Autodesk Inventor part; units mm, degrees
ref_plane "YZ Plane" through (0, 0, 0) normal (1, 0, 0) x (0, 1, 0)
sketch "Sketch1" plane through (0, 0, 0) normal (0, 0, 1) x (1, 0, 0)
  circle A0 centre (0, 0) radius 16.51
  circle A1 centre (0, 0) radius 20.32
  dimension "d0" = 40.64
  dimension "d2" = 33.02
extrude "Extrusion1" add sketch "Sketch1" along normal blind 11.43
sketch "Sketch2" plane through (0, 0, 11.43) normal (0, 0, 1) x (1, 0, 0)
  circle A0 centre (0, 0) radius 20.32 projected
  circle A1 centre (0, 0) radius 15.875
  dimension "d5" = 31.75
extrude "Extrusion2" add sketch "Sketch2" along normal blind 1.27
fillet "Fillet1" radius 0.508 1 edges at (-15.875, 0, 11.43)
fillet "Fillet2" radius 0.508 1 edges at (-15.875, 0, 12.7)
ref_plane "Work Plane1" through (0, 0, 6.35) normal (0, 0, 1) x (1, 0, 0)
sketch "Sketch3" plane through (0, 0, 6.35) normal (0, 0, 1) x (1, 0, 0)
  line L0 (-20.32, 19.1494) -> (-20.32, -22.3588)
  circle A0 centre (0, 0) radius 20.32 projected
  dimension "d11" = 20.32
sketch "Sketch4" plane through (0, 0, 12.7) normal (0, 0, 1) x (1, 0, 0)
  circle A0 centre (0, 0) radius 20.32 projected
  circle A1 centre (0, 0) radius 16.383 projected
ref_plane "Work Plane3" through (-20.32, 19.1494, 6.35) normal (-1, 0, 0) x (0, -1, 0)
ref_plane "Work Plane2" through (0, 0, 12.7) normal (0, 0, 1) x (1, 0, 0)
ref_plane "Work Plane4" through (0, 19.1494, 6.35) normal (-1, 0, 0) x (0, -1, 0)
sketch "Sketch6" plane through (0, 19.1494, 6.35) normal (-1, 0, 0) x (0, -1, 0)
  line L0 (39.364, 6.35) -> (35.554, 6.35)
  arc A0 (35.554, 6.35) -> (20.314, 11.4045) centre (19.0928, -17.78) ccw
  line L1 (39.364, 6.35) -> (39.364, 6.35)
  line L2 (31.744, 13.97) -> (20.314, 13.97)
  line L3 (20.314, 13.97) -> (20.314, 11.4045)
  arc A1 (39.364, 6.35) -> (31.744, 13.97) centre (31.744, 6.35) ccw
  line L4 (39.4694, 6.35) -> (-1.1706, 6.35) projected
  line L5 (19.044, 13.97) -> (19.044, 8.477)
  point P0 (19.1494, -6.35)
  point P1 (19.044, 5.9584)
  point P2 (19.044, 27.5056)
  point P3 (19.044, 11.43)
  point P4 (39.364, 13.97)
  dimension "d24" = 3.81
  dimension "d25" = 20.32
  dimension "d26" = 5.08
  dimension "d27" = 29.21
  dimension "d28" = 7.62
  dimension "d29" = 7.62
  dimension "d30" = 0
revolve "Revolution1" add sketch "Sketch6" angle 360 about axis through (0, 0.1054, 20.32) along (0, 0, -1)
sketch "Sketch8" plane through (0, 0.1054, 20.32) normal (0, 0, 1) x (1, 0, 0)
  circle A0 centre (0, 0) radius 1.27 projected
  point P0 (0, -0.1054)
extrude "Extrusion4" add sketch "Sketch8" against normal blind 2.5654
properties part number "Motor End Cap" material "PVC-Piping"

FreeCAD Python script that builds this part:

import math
import FreeCAD as App
import Part
import Sketcher

V = App.Vector
Q = App.Units.Quantity


def edges_at(feature, points):
    """Names of the edges that pass closest to the given points."""
    edges = feature.Shape.Edges
    near = lambda p: min(range(len(edges)), key=lambda i: edges[i].distToShape(Part.Vertex(*p))[0])
    return sorted({f"Edge{near(p) + 1}" for p in points})

doc = App.newDocument("Part")
body = doc.addObject("PartDesign::Body", "Body")

# Sketch on XY plane
sketch1 = body.newObject("Sketcher::SketchObject", "Sketch")
sketch1.AttachmentSupport = (doc.getObject("XY_Plane"), [""])
sketch1.MapMode = "FlatFace"
sketch1.addGeometry([
    Part.Circle(V(0, 0, 0), V(0, 0, 1), 20),
    Part.Circle(V(0, 0, 0), V(0, 0, 1), 17),
], False)
sketch1.addConstraint([
    Sketcher.Constraint("Coincident", 0, 3, -1, 1),
    Sketcher.Constraint("Coincident", 1, 3, -1, 1),
    Sketcher.Constraint("Diameter", 0, Q("1.6 in")),
    Sketcher.Constraint("Diameter", 1, Q("1.3 in")),
])
pad1 = body.newObject("PartDesign::Pad", "Pad")
pad1.Profile = sketch1
pad1.Length = Q("0.45 in")

# Sketch on XY plane
sketch2 = body.newObject("Sketcher::SketchObject", "Sketch001")
sketch2.AttachmentSupport = (doc.getObject("XY_Plane"), [""])
sketch2.MapMode = "FlatFace"
sketch2.AttachmentOffset = App.Placement(V(0, 0, 0.45 * 25.4), App.Rotation())
sketch2.addGeometry([
    Part.Circle(V(0, 0, 0), V(0, 0, 1), 20),
    Part.Circle(V(0, 0, 0), V(0, 0, 1), 16),
], False)
sketch2.addConstraint([
    Sketcher.Constraint("Coincident", 0, 3, -1, 1),
    Sketcher.Constraint("Coincident", 1, 3, -1, 1),
    Sketcher.Constraint("Diameter", 1, Q("1.25 in")),
    Sketcher.Constraint("Diameter", 0, Q("1.6 in")),
])
pad2 = body.newObject("PartDesign::Pad", "Pad001")
pad2.Profile = sketch2
pad2.Length = Q("0.05 in")
doc.recompute()

fillet = body.newObject("PartDesign::Fillet", "Fillet")
fillet.Base = (pad2, edges_at(pad2, [(-15.875, 0, 11.43)]))
fillet.Radius = Q("0.02 in")
doc.recompute()

fillet2 = body.newObject("PartDesign::Fillet", "Fillet001")
fillet2.Base = (fillet, edges_at(fillet, [(-15.875, 0, 12.7)]))
fillet2.Radius = Q("0.02 in")

# Sketch on YZ plane
sketch3 = body.newObject("Sketcher::SketchObject", "Sketch002")
sketch3.AttachmentSupport = (doc.getObject("YZ_Plane"), [""])
sketch3.MapMode = "FlatFace"
sketch3.addGeometry([
    Part.LineSegment(V(-16.4, 12.7, 0), V(-20.2, 12.7, 0)),  # 0
    Part.ArcOfCircle(Part.Circle(V(-12.6, 12.7, 0), V(0, 0, 1), 7.6), math.radians(90), math.radians(180)),  # 1
    Part.LineSegment(V(-12.6, 20.3, 0), V(-1.2, 20.3, 0)),  # 2
    Part.LineSegment(V(-1.2, 20.3, 0), V(-1.2, 17.8, 0)),  # 3
    Part.ArcOfCircle(Part.Circle(V(0.1, -11.4, 0), V(0, 0, 1), 29.2), math.radians(92), math.radians(124)),  # 4
], False)
sketch3.addGeometry(Part.LineSegment(V(0.1, 20.3, 0), V(0.1, -11.4, 0)), True)  # axis
sketch3.addConstraint([
    Sketcher.Constraint("Coincident", 0, 2, 1, 2),
    Sketcher.Constraint("Tangent", 1, 1, 2, 1),
    Sketcher.Constraint("Coincident", 2, 2, 3, 1),
    Sketcher.Constraint("Coincident", 3, 2, 4, 1),
    Sketcher.Constraint("Coincident", 4, 2, 0, 1),
    Sketcher.Constraint("Horizontal", 0),
    Sketcher.Constraint("Horizontal", 2),
    Sketcher.Constraint("Vertical", 3),
    Sketcher.Constraint("Vertical", 5),
    Sketcher.Constraint("Horizontal", 1, 3, 0, 2),
    Sketcher.Constraint("Horizontal", 2, 2, 5, 1),
    Sketcher.Constraint("Horizontal", 4, 3, 5, 2),
    Sketcher.Constraint("Radius", 1, Q("0.3 in")),
    Sketcher.Constraint("Radius", 4, Q("1.15 in")),
    Sketcher.Constraint("DistanceX", 0, 2, 0, 1, Q("0.15 in")),
    Sketcher.Constraint("DistanceY", -1, 1, 1, 1, Q("0.8 in")),
    Sketcher.Constraint("DistanceX", 0, 2, 5, 2, Q("0.8 in")),
    Sketcher.Constraint("DistanceX", 2, 1, 2, 2, Q("0.45 in")),
    Sketcher.Constraint("DistanceY", 5, 2, 5, 1, Q("1.25 in")),
    Sketcher.Constraint("DistanceX", 1, 3, -1, 1, 12.5946),
])
revolution = body.newObject("PartDesign::Revolution", "Revolution")
revolution.Profile = sketch3
revolution.ReferenceAxis = (sketch3, ["Axis0"])
revolution.Angle = 360

# Sketch on XY plane
sketch4 = body.newObject("Sketcher::SketchObject", "Sketch003")
sketch4.AttachmentSupport = (doc.getObject("XY_Plane"), [""])
sketch4.MapMode = "FlatFace"
sketch4.AttachmentOffset = App.Placement(V(0, 0, 0.8 * 25.4), App.Rotation())
sketch4.addGeometry(Part.Circle(V(0, 0.1, 0), V(0, 0, 1), 1.3), False)
sketch4.addConstraint([
    Sketcher.Constraint("PointOnObject", 0, 3, -2),
    Sketcher.Constraint("Diameter", 0, Q("0.1 in")),
    Sketcher.Constraint("DistanceY", -1, 1, 0, 3, 0.1054),
])
pad3 = body.newObject("PartDesign::Pad", "Pad002")
pad3.Profile = sketch4
pad3.Length = Q("0.101 in")
pad3.Reversed = True

doc.recompute()
